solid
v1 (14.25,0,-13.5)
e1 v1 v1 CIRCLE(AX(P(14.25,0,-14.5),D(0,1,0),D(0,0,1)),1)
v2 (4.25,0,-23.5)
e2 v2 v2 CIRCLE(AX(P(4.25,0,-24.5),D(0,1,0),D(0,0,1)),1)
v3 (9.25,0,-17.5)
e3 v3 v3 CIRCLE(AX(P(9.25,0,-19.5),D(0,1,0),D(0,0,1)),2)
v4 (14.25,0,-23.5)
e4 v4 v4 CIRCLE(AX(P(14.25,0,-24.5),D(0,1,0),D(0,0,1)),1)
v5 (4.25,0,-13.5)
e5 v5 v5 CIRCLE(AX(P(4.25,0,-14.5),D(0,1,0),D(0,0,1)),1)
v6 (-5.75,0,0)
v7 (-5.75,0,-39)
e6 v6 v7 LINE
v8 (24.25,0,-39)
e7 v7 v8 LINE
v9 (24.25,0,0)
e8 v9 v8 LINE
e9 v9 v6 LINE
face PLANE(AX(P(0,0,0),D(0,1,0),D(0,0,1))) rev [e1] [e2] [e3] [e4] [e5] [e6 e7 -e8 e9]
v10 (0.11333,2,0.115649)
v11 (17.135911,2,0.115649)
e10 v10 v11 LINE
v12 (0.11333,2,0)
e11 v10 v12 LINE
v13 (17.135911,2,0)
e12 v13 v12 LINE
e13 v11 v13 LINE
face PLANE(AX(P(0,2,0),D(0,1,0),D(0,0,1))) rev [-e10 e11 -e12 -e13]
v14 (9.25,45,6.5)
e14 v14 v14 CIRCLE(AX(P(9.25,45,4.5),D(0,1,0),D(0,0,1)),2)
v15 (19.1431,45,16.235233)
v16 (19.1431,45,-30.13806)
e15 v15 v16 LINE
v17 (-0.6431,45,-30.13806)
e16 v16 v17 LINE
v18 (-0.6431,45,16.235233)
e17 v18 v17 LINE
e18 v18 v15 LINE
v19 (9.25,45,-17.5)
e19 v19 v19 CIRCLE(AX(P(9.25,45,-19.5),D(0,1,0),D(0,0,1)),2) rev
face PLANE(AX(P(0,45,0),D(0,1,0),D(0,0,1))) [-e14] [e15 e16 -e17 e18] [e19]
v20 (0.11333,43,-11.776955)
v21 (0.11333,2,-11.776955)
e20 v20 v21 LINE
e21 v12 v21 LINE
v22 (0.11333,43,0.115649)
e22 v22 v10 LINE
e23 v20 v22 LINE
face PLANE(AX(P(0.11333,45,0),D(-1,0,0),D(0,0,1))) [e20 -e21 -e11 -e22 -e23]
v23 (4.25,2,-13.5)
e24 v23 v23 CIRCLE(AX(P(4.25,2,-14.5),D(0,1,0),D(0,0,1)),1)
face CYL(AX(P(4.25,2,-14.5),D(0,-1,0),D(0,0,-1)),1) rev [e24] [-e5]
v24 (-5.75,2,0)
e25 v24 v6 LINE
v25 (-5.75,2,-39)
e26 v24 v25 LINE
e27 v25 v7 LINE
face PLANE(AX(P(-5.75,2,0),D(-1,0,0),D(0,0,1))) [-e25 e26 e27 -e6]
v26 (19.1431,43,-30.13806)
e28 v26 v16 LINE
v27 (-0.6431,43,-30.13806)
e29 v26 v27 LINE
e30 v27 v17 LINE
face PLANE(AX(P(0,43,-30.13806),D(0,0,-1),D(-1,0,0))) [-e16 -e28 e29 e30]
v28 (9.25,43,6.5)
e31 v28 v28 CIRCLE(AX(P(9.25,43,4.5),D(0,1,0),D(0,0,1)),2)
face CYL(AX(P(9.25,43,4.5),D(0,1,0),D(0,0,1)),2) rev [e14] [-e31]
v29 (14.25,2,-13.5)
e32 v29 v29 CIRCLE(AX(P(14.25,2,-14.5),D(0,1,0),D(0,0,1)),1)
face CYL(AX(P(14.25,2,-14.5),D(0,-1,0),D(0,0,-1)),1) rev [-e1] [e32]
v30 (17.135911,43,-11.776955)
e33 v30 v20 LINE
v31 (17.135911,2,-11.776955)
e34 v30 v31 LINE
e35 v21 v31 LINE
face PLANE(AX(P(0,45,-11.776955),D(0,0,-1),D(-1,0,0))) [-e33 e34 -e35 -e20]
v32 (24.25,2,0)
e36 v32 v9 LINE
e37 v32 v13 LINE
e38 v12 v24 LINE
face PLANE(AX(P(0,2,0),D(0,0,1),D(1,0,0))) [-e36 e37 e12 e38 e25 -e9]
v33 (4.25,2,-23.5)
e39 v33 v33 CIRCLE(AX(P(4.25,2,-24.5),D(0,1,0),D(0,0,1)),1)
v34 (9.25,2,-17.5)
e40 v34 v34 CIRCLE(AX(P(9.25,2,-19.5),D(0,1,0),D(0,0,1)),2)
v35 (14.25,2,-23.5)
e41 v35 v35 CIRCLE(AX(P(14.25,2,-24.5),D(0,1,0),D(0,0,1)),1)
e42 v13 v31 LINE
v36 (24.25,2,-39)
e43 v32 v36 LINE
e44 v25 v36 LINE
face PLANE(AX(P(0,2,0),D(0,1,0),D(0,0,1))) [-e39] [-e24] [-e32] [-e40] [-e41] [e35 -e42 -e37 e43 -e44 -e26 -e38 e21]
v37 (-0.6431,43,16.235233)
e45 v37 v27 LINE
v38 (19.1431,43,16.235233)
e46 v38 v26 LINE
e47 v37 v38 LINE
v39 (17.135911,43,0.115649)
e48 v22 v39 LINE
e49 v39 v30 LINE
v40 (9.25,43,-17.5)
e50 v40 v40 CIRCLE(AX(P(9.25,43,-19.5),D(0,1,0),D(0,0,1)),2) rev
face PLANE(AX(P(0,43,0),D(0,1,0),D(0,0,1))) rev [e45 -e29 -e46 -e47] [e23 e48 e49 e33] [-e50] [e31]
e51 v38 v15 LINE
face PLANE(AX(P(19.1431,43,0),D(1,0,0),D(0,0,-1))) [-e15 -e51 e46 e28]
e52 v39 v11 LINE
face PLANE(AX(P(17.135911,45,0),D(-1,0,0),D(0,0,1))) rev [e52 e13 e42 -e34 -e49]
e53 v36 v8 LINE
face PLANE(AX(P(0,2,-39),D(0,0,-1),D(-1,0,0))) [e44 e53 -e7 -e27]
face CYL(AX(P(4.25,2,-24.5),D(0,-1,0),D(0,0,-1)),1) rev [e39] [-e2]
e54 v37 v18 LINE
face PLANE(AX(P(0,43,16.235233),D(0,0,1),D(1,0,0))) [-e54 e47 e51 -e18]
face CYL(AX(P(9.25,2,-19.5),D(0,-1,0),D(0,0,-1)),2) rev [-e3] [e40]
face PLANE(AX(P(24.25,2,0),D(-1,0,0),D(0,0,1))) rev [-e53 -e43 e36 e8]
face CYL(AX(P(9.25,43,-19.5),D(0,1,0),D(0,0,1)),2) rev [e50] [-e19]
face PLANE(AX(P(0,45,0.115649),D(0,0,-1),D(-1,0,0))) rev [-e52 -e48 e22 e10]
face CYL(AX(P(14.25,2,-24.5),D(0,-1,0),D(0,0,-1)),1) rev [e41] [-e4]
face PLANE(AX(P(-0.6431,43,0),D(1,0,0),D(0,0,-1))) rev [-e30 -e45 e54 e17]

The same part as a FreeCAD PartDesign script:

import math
import FreeCAD as App
import Part
import Sketcher
from FreeCAD import Vector


def add_polygon(sketch, points):
    """Adds a closed chain of lines whose ends are joined by coincident constraints."""
    first, n = sketch.GeometryCount, len(points)
    for a, b in zip(points, points[1:] + points[:1]):
        sketch.addGeometry(Part.LineSegment(App.Vector(*a, 0), App.Vector(*b, 0)), False)
    for i in range(n):
        sketch.addConstraint(Sketcher.Constraint("Coincident", first + i, 2, first + (i + 1) % n, 1))

doc = App.newDocument("Part")
params = doc.addObject("Spreadsheet::Sheet", "Params")
for row, (alias, value) in enumerate([
    ("sketch1_diameter", "2 mm"),
    ("sketch1_radius", "2 mm"),
    ("sketch1_width", "30 mm"),
    ("sketch1_height", "39 mm"),
    ("pad1_length", "2 mm"),
    ("pad2_length", "43 mm"),
    ("sketch3_diameter", "4 mm"),
    ("pad3_length", "2 mm"),
], start=1):
    params.set(f"A{row}", alias)
    params.set(f"B{row}", "=" + value)
    params.setAlias(f"B{row}", alias)

body = doc.addObject("PartDesign::Body", "Body")

# Sketch on XZ plane
sketch1 = body.newObject("Sketcher::SketchObject", "Sketch")
sketch1.AttachmentSupport = (doc.getObject("XZ_Plane"), [""])
sketch1.MapMode = "FlatFace"
add_polygon(sketch1, [(-5.75, -39), (-5.75, 0), (24.25, 0), (24.25, -39)])  # lines 0-3
sketch1.addGeometry(Part.ArcOfCircle(Part.Circle(Vector(9.25, -19.5, 0), Vector(0, 0, 1), 2), math.radians(180), math.radians(360)), False)  # 4
sketch1.addGeometry(Part.ArcOfCircle(Part.Circle(Vector(9.25, -19.5, 0), Vector(0, 0, 1), 2), math.radians(0), math.radians(90)), False)  # 5
sketch1.addGeometry(Part.ArcOfCircle(Part.Circle(Vector(9.25, -19.5, 0), Vector(0, 0, 1), 2), math.radians(90), math.radians(180)), False)  # 6
sketch1.addGeometry(Part.Circle(Vector(4.25, -24.5, 0), Vector(0, 0, 1), 1), False)  # 7
sketch1.addGeometry(Part.Circle(Vector(14.25, -24.5, 0), Vector(0, 0, 1), 1), False)  # 8
sketch1.addGeometry(Part.Circle(Vector(4.25, -14.5, 0), Vector(0, 0, 1), 1), False)  # 9
sketch1.addGeometry(Part.Circle(Vector(14.25, -14.5, 0), Vector(0, 0, 1), 1), False)  # 10
sketch1.addConstraint(Sketcher.Constraint("Tangent", 4, 2, 5, 1))
sketch1.addConstraint(Sketcher.Constraint("Tangent", 5, 2, 6, 1))
sketch1.addConstraint(Sketcher.Constraint("Tangent", 6, 2, 4, 1))
sketch1.addConstraint(Sketcher.Constraint("Vertical", 0))
sketch1.addConstraint(Sketcher.Constraint("Horizontal", 1))
sketch1.addConstraint(Sketcher.Constraint("Vertical", 2))
sketch1.addConstraint(Sketcher.Constraint("Horizontal", 3))
sketch1.addConstraint(Sketcher.Constraint("Equal", 7, 8))
sketch1.addConstraint(Sketcher.Constraint("Equal", 8, 9))
sketch1.addConstraint(Sketcher.Constraint("Equal", 9, 10))
sketch1.addConstraint(Sketcher.Constraint("PointOnObject", 0, 2, -1))
sketch1.addConstraint(Sketcher.Constraint("Horizontal", 7, 3, 8, 3))
sketch1.addConstraint(Sketcher.Constraint("Horizontal", 9, 3, 10, 3))
sketch1.addConstraint(Sketcher.Constraint("Horizontal", 6, 3, 4, 2))
sketch1.addConstraint(Sketcher.Constraint("Horizontal", 4, 2, 6, 2))
sketch1.addConstraint(Sketcher.Constraint("Vertical", 7, 3, 9, 3))
sketch1.addConstraint(Sketcher.Constraint("Vertical", 8, 3, 10, 3))
sketch1.addConstraint(Sketcher.Constraint("Vertical", 6, 3, 5, 2))
sketch1.addConstraint(Sketcher.Constraint("Diameter", 7, 2.0))
sketch1.addConstraint(Sketcher.Constraint("Radius", 4, 2.0))
sketch1.addConstraint(Sketcher.Constraint("DistanceX", 1, 1, 1, 2, 30.0))
sketch1.addConstraint(Sketcher.Constraint("DistanceY", 0, 1, 0, 2, 39.0))
sketch1.addConstraint(Sketcher.Constraint("DistanceX", 7, 3, 5, 3, 5.0))
sketch1.addConstraint(Sketcher.Constraint("DistanceY", 7, 3, 5, 3, 5.0))
sketch1.addConstraint(Sketcher.Constraint("DistanceX", 6, 3, 8, 3, 5.0))
sketch1.addConstraint(Sketcher.Constraint("DistanceY", 4, 3, 9, 3, 5.0))
sketch1.addConstraint(Sketcher.Constraint("DistanceX", 0, 2, 9, 3, 10.0))
sketch1.addConstraint(Sketcher.Constraint("DistanceY", 4, 3, -1, 1, 19.5))
sketch1.addConstraint(Sketcher.Constraint("DistanceX", -1, 1, 4, 3, 9.25))
sketch1.setExpression("Constraints[22]", "Params.sketch1_diameter")
sketch1.setExpression("Constraints[23]", "Params.sketch1_radius")
sketch1.setExpression("Constraints[24]", "Params.sketch1_width")
sketch1.setExpression("Constraints[25]", "Params.sketch1_height")
pad1 = body.newObject("PartDesign::Pad", "Pad")
pad1.Profile = sketch1
pad1.setExpression("Length", "Params.pad1_length")
pad1.Reversed = True

# Sketch on XZ plane
sketch2 = body.newObject("Sketcher::SketchObject", "Sketch001")
sketch2.AttachmentSupport = (doc.getObject("XZ_Plane"), [""])
sketch2.MapMode = "FlatFace"
sketch2.AttachmentOffset = App.Placement(Vector(0, 0, -2), App.Rotation())
add_polygon(sketch2, [(0.11333, -11.776955), (0.11333, 0.115649), (17.135911, 0.115649), (17.135911, -11.776955)])  # lines 0-3
sketch2.addConstraint(Sketcher.Constraint("Vertical", 0))
sketch2.addConstraint(Sketcher.Constraint("Horizontal", 1))
sketch2.addConstraint(Sketcher.Constraint("Vertical", 2))
sketch2.addConstraint(Sketcher.Constraint("Horizontal", 3))
sketch2.addConstraint(Sketcher.Constraint("DistanceX", 1, 1, 1, 2, 17.02258))
sketch2.addConstraint(Sketcher.Constraint("DistanceY", 0, 1, 0, 2, 11.892604))
sketch2.addConstraint(Sketcher.Constraint("DistanceX", -1, 1, 0, 2, 0.11333))
sketch2.addConstraint(Sketcher.Constraint("DistanceY", -1, 1, 0, 2, 0.115649))
pad2 = body.newObject("PartDesign::Pad", "Pad001")
pad2.Profile = sketch2
pad2.setExpression("Length", "Params.pad2_length")
pad2.Reversed = True

# Sketch on XZ plane
sketch3 = body.newObject("Sketcher::SketchObject", "Sketch002")
sketch3.AttachmentSupport = (doc.getObject("XZ_Plane"), [""])
sketch3.MapMode = "FlatFace"
sketch3.AttachmentOffset = App.Placement(Vector(0, 0, -43), App.Rotation())
add_polygon(sketch3, [(-0.6431, -30.13806), (-0.6431, 16.235233), (19.1431, 16.235233), (19.1431, -30.13806)])  # lines 0-3
sketch3.addGeometry(Part.Circle(Vector(9.25, 4.5, 0), Vector(0, 0, 1), 2), False)  # 4
sketch3.addGeometry(Part.Circle(Vector(9.25, -19.5, 0), Vector(0, 0, 1), 2), False)  # 5
sketch3.addConstraint(Sketcher.Constraint("Vertical", 0))
sketch3.addConstraint(Sketcher.Constraint("Horizontal", 1))
sketch3.addConstraint(Sketcher.Constraint("Vertical", 2))
sketch3.addConstraint(Sketcher.Constraint("Horizontal", 3))
sketch3.addConstraint(Sketcher.Constraint("Equal", 4, 5))
sketch3.addConstraint(Sketcher.Constraint("Vertical", 4, 3, 5, 3))
sketch3.addConstraint(Sketcher.Constraint("Diameter", 4, 4.0))
sketch3.addConstraint(Sketcher.Constraint("DistanceY", 5, 3, 4, 3, 24.0))
sketch3.addConstraint(Sketcher.Constraint("DistanceY", -1, 1, 4, 3, 4.5))
sketch3.addConstraint(Sketcher.Constraint("DistanceX", -1, 1, 4, 3, 9.25))
sketch3.addConstraint(Sketcher.Constraint("DistanceX", 1, 1, 1, 2, 19.7862))
sketch3.addConstraint(Sketcher.Constraint("DistanceX", 0, 2, -1, 1, 0.6431))
sketch3.addConstraint(Sketcher.Constraint("DistanceY", 0, 1, 0, 2, 46.373293))
sketch3.addConstraint(Sketcher.Constraint("DistanceY", 2, 2, -1, 1, 30.13806))
sketch3.setExpression("Constraints[10]", "Params.sketch3_diameter")
pad3 = body.newObject("PartDesign::Pad", "Pad002")
pad3.Profile = sketch3
pad3.setExpression("Length", "Params.pad3_length")
pad3.Reversed = True

doc.recompute()
